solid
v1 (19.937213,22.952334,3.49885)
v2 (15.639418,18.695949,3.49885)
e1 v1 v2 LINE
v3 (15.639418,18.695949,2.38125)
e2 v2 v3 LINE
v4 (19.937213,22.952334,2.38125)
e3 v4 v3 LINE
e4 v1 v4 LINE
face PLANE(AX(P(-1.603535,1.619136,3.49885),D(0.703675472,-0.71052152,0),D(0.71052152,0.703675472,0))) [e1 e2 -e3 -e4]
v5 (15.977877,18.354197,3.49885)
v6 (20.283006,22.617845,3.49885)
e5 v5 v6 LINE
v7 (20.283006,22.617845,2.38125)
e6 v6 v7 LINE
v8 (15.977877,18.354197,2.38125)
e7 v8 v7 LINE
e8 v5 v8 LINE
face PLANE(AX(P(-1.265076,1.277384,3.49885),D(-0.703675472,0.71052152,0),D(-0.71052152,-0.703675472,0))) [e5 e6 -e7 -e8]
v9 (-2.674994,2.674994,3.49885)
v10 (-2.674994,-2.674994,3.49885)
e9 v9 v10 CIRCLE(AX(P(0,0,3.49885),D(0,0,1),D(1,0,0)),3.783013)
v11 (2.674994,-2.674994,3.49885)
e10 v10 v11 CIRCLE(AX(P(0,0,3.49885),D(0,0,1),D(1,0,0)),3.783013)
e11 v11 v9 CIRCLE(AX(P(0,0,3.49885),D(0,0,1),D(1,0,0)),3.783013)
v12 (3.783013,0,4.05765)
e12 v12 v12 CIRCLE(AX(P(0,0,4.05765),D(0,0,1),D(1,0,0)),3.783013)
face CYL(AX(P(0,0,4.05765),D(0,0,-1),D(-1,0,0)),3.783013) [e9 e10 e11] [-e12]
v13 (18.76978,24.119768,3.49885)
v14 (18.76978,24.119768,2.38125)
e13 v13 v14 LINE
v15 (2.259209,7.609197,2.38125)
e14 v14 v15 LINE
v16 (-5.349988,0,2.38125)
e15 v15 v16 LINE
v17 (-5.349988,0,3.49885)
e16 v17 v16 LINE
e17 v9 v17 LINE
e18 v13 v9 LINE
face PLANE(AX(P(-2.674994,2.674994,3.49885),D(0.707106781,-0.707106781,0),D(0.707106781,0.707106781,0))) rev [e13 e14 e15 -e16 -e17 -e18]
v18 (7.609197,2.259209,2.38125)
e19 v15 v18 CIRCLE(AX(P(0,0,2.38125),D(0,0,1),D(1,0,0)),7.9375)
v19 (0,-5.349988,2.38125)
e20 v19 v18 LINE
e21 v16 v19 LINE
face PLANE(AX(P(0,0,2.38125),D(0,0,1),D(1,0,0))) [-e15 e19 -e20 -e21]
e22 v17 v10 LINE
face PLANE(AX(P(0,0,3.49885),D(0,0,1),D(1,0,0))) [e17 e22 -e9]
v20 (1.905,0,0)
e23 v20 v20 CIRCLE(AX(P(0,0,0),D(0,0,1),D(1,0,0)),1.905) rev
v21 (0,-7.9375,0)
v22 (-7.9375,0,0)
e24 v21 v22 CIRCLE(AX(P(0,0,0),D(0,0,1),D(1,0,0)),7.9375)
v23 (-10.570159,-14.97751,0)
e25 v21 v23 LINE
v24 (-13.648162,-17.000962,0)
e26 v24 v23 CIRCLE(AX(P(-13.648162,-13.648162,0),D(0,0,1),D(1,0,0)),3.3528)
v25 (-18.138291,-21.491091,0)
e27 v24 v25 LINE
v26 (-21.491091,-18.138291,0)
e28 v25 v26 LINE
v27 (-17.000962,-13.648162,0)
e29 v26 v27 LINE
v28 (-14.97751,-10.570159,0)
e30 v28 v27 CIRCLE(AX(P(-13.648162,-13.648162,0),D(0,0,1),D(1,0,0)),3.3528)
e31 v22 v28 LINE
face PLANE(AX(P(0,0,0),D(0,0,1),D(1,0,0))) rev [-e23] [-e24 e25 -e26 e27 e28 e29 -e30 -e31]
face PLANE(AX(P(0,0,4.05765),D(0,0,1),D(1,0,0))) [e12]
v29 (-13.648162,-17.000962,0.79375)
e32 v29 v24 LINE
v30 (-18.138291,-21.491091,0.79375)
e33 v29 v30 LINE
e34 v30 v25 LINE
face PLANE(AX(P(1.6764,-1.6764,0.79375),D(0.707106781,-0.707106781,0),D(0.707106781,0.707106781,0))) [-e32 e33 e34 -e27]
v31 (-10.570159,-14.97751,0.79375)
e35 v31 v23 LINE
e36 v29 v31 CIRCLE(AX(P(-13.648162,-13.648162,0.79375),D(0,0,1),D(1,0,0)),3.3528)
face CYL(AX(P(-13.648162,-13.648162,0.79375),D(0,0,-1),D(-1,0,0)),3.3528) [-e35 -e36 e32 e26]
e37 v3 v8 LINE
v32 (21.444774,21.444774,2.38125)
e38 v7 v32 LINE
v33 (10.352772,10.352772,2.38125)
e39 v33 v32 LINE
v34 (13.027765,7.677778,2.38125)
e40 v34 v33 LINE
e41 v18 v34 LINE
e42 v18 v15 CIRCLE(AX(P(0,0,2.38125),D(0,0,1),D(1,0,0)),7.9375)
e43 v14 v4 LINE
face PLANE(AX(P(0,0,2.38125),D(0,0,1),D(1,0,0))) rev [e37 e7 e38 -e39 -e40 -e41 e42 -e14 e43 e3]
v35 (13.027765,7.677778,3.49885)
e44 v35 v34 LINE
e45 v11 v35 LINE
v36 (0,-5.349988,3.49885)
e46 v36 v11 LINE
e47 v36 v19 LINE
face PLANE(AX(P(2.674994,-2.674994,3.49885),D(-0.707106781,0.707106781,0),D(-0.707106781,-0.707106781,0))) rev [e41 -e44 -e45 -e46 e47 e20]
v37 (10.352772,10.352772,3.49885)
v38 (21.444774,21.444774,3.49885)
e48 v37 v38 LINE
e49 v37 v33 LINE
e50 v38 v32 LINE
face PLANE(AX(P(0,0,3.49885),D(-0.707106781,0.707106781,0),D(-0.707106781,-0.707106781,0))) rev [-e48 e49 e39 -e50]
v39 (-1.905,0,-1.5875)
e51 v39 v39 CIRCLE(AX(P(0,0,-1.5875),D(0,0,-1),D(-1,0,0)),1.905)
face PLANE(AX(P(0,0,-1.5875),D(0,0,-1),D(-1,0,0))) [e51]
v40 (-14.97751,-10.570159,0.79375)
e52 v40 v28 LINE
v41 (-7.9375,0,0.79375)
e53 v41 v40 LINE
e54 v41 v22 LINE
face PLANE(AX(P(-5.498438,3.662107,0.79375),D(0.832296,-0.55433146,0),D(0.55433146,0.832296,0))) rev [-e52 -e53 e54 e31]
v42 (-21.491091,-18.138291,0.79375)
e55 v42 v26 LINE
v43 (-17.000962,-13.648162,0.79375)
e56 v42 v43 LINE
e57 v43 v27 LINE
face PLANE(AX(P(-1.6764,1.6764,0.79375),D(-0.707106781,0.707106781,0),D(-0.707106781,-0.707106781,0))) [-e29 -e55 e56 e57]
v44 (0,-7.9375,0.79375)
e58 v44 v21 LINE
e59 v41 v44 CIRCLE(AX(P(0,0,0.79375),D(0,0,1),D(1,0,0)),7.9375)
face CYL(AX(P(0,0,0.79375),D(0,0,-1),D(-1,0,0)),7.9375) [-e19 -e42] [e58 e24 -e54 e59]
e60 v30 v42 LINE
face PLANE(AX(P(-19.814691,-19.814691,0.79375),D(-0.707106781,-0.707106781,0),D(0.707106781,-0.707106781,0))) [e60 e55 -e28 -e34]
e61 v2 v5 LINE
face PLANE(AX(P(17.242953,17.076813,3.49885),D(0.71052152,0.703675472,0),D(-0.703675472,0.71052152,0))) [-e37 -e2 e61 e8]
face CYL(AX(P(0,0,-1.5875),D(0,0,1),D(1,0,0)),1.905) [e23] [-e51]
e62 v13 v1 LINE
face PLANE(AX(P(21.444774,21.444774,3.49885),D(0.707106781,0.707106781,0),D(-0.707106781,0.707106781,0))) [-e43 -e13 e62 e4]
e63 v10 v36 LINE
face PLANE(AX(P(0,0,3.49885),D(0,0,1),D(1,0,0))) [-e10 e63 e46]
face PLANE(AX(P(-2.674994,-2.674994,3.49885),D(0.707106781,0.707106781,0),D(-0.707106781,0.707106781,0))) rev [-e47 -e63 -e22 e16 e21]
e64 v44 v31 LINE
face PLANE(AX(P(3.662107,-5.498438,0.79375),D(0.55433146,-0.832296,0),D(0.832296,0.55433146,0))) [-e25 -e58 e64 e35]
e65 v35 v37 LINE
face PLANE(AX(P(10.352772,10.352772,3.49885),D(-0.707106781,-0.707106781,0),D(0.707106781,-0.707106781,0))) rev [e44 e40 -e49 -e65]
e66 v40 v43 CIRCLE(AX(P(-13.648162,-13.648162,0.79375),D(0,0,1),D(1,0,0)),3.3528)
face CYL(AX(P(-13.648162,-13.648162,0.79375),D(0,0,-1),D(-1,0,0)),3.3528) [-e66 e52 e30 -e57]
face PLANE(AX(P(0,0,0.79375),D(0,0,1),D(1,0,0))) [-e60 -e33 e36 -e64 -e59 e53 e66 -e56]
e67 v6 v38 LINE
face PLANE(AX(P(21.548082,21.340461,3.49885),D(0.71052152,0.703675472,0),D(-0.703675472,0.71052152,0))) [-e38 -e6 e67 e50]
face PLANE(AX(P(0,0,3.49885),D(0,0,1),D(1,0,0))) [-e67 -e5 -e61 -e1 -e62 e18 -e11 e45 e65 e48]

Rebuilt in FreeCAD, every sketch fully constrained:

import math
import FreeCAD as App
import Part
import Sketcher
from FreeCAD import Vector
Q = App.Units.Quantity


def add_polygon(sketch, points):
    """Adds a closed chain of lines whose ends are joined by coincident constraints."""
    first, n = sketch.GeometryCount, len(points)
    for a, b in zip(points, points[1:] + points[:1]):
        sketch.addGeometry(Part.LineSegment(App.Vector(*a, 0), App.Vector(*b, 0)), False)
    for i in range(n):
        sketch.addConstraint(Sketcher.Constraint("Coincident", first + i, 2, first + (i + 1) % n, 1))

doc = App.newDocument("Part")
body = doc.addObject("PartDesign::Body", "Body")

# Sketch on XY plane
sketch1 = doc.addObject("Sketcher::SketchObject", "Sketch")
body.addObject(sketch1)
sketch1.AttachmentSupport = (doc.XY_Plane, [""])
sketch1.MapMode = "FlatFace"
sketch1.addGeometry(Part.LineSegment(Vector(-10.570159, -14.97751, 0), Vector(0, -7.9375, 0)), False)
sketch1.addGeometry(Part.ArcOfCircle(Part.Circle(Vector(0, 0, 0), Vector(0, 0, 1), 7.9375), math.radians(-90), math.radians(180)), False)
sketch1.addGeometry(Part.LineSegment(Vector(-7.9375, 0, 0), Vector(-14.97751, -10.570159, 0)), False)
sketch1.addGeometry(Part.ArcOfCircle(Part.Circle(Vector(-13.648162, -13.648162, 0), Vector(0, 0, 1), 3.3528), math.radians(113.358848), math.radians(180)), False)
sketch1.addGeometry(Part.LineSegment(Vector(-17.000962, -13.648162, 0), Vector(-21.491091, -18.138291, 0)), False)
sketch1.addGeometry(Part.LineSegment(Vector(-21.491091, -18.138291, 0), Vector(-18.138291, -21.491091, 0)), False)
sketch1.addGeometry(Part.LineSegment(Vector(-18.138291, -21.491091, 0), Vector(-13.648162, -17.000962, 0)), False)
sketch1.addGeometry(Part.ArcOfCircle(Part.Circle(Vector(-13.648162, -13.648162, 0), Vector(0, 0, 1), 3.3528), math.radians(-90), math.radians(-23.358848)), False)
sketch1.addConstraint(Sketcher.Constraint("Coincident", 0, 2, 1, 1))
sketch1.addConstraint(Sketcher.Constraint("Coincident", 1, 2, 2, 1))
sketch1.addConstraint(Sketcher.Constraint("Coincident", 2, 2, 3, 1))
sketch1.addConstraint(Sketcher.Constraint("Coincident", 3, 2, 4, 1))
sketch1.addConstraint(Sketcher.Constraint("Coincident", 4, 2, 5, 1))
sketch1.addConstraint(Sketcher.Constraint("Coincident", 5, 2, 6, 1))
sketch1.addConstraint(Sketcher.Constraint("Coincident", 6, 2, 7, 1))
sketch1.addConstraint(Sketcher.Constraint("Coincident", 7, 2, 0, 1))
sketch1.addConstraint(Sketcher.Constraint("Coincident", 1, 3, -1, 1))
sketch1.addConstraint(Sketcher.Constraint("Coincident", 7, 3, 3, 3))
sketch1.addConstraint(Sketcher.Constraint("Equal", 3, 7))
sketch1.addConstraint(Sketcher.Constraint("PointOnObject", 0, 2, -2))
sketch1.addConstraint(Sketcher.Constraint("PointOnObject", 1, 2, -1))
sketch1.addConstraint(Sketcher.Constraint("Perpendicular", 4, 5))
sketch1.addConstraint(Sketcher.Constraint("Perpendicular", 5, 6))
sketch1.addConstraint(Sketcher.Constraint("Horizontal", 7, 3, 3, 2))
sketch1.addConstraint(Sketcher.Constraint("Vertical", 7, 3, 6, 2))
sketch1.addConstraint(Sketcher.Constraint("Equal", 0, 2))
sketch1.addConstraint(Sketcher.Constraint("Equal", 4, 6))
sketch1.addConstraint(Sketcher.Constraint("Radius", 1, Q("0.3125 in")))
sketch1.addConstraint(Sketcher.Constraint("Radius", 3, Q("0.132 in")))
sketch1.addConstraint(Sketcher.Constraint("Distance", 0, Q("0.5 in")))
sketch1.addConstraint(Sketcher.Constraint("Distance", 4, Q("0.25 in")))
sketch1.addConstraint(Sketcher.Constraint("DistanceX", 2, 2, -1, 1, Q("14.97751 mm")))
sketch1.addConstraint(Sketcher.Constraint("DistanceX", 4, 2, -1, 1, Q("21.491091 mm")))
pad1 = doc.addObject("PartDesign::Pad", "Pad")
body.addObject(pad1)
pad1.Profile = sketch1
pad1.Length = Q("0.03125 in")

# Sketch on XY plane
sketch2 = doc.addObject("Sketcher::SketchObject", "Sketch001")
body.addObject(sketch2)
sketch2.AttachmentSupport = (doc.XY_Plane, [""])
sketch2.MapMode = "FlatFace"
sketch2.AttachmentOffset = App.Placement(Vector(0, 0, 0.03125 * 25.4), App.Rotation())
sketch2.addGeometry(Part.Circle(Vector(0, 0, 0), Vector(0, 0, 1), 7.9375), False)
sketch2.addConstraint(Sketcher.Constraint("Coincident", 0, 3, -1, 1))
sketch2.addConstraint(Sketcher.Constraint("Diameter", 0, Q("0.625 in")))
pad2 = doc.addObject("PartDesign::Pad", "Pad001")
body.addObject(pad2)
pad2.Profile = sketch2
pad2.Length = Q("0.0625 in")

# Sketch on XY plane
sketch3 = doc.addObject("Sketcher::SketchObject", "Sketch002")
body.addObject(sketch3)
sketch3.AttachmentSupport = (doc.XY_Plane, [""])
sketch3.MapMode = "FlatFace"
sketch3.AttachmentOffset = App.Placement(Vector(0, 0, 0.09375 * 25.4), App.Rotation())
add_polygon(sketch3, [(-5.349988, 0), (0, -5.349988), (13.027765, 7.677778), (10.352772, 10.352772), (21.444774, 21.444774), (20.283006, 22.617845), (15.977877, 18.354197), (15.639418, 18.695949), (19.937213, 22.952334), (18.76978, 24.119768)])  # lines 0-9
sketch3.addConstraint(Sketcher.Constraint("PointOnObject", 0, 2, -2))
sketch3.addConstraint(Sketcher.Constraint("PointOnObject", 9, 2, -1))
sketch3.addConstraint(Sketcher.Constraint("Perpendicular", 0, 1))
sketch3.addConstraint(Sketcher.Constraint("Perpendicular", 1, 2))
sketch3.addConstraint(Sketcher.Constraint("Perpendicular", 2, 3))
sketch3.addConstraint(Sketcher.Constraint("Perpendicular", 4, 5))
sketch3.addConstraint(Sketcher.Constraint("Perpendicular", 5, 6))
sketch3.addConstraint(Sketcher.Constraint("Perpendicular", 6, 7))
sketch3.addConstraint(Sketcher.Constraint("Perpendicular", 3, 8))
sketch3.addConstraint(Sketcher.Constraint("Perpendicular", 8, 9))
sketch3.addConstraint(Sketcher.Constraint("Equal", 4, 8))
sketch3.addConstraint(Sketcher.Constraint("Angle", 0, Q("-45 deg")))
sketch3.addConstraint(Sketcher.Constraint("Distance", 4, Q("0.065 in")))
sketch3.addConstraint(Sketcher.Constraint("Distance", 3, Q("15.68646 mm")))
sketch3.addConstraint(Sketcher.Constraint("Distance", 5, Q("6.059111 mm")))
sketch3.addConstraint(Sketcher.Constraint("Distance", 7, Q("6.04879 mm")))
sketch3.addConstraint(Sketcher.Constraint("DistanceX", -1, 1, 2, 2, Q("10.352772 mm")))
sketch3.addConstraint(Sketcher.Constraint("DistanceY", -1, 1, 2, 2, Q("10.352772 mm")))
sketch3.addConstraint(Sketcher.Constraint("DistanceY", -1, 1, 6, 2, Q("18.695949 mm")))
sketch3.addConstraint(Sketcher.Constraint("DistanceX", -1, 1, 8, 2, Q("18.76978 mm")))
pad3 = doc.addObject("PartDesign::Pad", "Pad002")
body.addObject(pad3)
pad3.Profile = sketch3
pad3.Length = Q("0.044 in")

# Sketch on XY plane
sketch4 = doc.addObject("Sketcher::SketchObject", "Sketch003")
body.addObject(sketch4)
sketch4.AttachmentSupport = (doc.XY_Plane, [""])
sketch4.MapMode = "FlatFace"
sketch4.AttachmentOffset = App.Placement(Vector(0, 0, 3.49885), App.Rotation())
sketch4.addGeometry(Part.Circle(Vector(0, 0, 0), Vector(0, 0, 1), 3.783012), False)
sketch4.addConstraint(Sketcher.Constraint("Coincident", 0, 3, -1, 1))
sketch4.addConstraint(Sketcher.Constraint("Diameter", 0, Q("7.566025 mm")))
pad4 = doc.addObject("PartDesign::Pad", "Pad003")
body.addObject(pad4)
pad4.Profile = sketch4
pad4.Length = Q("0.022 in")

# Sketch on XY plane
sketch5 = doc.addObject("Sketcher::SketchObject", "Sketch004")
body.addObject(sketch5)
sketch5.AttachmentSupport = (doc.XY_Plane, [""])
sketch5.MapMode = "FlatFace"
sketch5.addGeometry(Part.Circle(Vector(0, 0, 0), Vector(0, 0, 1), 1.905), False)
sketch5.addConstraint(Sketcher.Constraint("Coincident", 0, 3, -1, 1))
sketch5.addConstraint(Sketcher.Constraint("Diameter", 0, Q("0.15 in")))
pad5 = doc.addObject("PartDesign::Pad", "Pad004")
body.addObject(pad5)
pad5.Profile = sketch5
pad5.Length = Q("0.0625 in")
pad5.Reversed = True

doc.recompute()
